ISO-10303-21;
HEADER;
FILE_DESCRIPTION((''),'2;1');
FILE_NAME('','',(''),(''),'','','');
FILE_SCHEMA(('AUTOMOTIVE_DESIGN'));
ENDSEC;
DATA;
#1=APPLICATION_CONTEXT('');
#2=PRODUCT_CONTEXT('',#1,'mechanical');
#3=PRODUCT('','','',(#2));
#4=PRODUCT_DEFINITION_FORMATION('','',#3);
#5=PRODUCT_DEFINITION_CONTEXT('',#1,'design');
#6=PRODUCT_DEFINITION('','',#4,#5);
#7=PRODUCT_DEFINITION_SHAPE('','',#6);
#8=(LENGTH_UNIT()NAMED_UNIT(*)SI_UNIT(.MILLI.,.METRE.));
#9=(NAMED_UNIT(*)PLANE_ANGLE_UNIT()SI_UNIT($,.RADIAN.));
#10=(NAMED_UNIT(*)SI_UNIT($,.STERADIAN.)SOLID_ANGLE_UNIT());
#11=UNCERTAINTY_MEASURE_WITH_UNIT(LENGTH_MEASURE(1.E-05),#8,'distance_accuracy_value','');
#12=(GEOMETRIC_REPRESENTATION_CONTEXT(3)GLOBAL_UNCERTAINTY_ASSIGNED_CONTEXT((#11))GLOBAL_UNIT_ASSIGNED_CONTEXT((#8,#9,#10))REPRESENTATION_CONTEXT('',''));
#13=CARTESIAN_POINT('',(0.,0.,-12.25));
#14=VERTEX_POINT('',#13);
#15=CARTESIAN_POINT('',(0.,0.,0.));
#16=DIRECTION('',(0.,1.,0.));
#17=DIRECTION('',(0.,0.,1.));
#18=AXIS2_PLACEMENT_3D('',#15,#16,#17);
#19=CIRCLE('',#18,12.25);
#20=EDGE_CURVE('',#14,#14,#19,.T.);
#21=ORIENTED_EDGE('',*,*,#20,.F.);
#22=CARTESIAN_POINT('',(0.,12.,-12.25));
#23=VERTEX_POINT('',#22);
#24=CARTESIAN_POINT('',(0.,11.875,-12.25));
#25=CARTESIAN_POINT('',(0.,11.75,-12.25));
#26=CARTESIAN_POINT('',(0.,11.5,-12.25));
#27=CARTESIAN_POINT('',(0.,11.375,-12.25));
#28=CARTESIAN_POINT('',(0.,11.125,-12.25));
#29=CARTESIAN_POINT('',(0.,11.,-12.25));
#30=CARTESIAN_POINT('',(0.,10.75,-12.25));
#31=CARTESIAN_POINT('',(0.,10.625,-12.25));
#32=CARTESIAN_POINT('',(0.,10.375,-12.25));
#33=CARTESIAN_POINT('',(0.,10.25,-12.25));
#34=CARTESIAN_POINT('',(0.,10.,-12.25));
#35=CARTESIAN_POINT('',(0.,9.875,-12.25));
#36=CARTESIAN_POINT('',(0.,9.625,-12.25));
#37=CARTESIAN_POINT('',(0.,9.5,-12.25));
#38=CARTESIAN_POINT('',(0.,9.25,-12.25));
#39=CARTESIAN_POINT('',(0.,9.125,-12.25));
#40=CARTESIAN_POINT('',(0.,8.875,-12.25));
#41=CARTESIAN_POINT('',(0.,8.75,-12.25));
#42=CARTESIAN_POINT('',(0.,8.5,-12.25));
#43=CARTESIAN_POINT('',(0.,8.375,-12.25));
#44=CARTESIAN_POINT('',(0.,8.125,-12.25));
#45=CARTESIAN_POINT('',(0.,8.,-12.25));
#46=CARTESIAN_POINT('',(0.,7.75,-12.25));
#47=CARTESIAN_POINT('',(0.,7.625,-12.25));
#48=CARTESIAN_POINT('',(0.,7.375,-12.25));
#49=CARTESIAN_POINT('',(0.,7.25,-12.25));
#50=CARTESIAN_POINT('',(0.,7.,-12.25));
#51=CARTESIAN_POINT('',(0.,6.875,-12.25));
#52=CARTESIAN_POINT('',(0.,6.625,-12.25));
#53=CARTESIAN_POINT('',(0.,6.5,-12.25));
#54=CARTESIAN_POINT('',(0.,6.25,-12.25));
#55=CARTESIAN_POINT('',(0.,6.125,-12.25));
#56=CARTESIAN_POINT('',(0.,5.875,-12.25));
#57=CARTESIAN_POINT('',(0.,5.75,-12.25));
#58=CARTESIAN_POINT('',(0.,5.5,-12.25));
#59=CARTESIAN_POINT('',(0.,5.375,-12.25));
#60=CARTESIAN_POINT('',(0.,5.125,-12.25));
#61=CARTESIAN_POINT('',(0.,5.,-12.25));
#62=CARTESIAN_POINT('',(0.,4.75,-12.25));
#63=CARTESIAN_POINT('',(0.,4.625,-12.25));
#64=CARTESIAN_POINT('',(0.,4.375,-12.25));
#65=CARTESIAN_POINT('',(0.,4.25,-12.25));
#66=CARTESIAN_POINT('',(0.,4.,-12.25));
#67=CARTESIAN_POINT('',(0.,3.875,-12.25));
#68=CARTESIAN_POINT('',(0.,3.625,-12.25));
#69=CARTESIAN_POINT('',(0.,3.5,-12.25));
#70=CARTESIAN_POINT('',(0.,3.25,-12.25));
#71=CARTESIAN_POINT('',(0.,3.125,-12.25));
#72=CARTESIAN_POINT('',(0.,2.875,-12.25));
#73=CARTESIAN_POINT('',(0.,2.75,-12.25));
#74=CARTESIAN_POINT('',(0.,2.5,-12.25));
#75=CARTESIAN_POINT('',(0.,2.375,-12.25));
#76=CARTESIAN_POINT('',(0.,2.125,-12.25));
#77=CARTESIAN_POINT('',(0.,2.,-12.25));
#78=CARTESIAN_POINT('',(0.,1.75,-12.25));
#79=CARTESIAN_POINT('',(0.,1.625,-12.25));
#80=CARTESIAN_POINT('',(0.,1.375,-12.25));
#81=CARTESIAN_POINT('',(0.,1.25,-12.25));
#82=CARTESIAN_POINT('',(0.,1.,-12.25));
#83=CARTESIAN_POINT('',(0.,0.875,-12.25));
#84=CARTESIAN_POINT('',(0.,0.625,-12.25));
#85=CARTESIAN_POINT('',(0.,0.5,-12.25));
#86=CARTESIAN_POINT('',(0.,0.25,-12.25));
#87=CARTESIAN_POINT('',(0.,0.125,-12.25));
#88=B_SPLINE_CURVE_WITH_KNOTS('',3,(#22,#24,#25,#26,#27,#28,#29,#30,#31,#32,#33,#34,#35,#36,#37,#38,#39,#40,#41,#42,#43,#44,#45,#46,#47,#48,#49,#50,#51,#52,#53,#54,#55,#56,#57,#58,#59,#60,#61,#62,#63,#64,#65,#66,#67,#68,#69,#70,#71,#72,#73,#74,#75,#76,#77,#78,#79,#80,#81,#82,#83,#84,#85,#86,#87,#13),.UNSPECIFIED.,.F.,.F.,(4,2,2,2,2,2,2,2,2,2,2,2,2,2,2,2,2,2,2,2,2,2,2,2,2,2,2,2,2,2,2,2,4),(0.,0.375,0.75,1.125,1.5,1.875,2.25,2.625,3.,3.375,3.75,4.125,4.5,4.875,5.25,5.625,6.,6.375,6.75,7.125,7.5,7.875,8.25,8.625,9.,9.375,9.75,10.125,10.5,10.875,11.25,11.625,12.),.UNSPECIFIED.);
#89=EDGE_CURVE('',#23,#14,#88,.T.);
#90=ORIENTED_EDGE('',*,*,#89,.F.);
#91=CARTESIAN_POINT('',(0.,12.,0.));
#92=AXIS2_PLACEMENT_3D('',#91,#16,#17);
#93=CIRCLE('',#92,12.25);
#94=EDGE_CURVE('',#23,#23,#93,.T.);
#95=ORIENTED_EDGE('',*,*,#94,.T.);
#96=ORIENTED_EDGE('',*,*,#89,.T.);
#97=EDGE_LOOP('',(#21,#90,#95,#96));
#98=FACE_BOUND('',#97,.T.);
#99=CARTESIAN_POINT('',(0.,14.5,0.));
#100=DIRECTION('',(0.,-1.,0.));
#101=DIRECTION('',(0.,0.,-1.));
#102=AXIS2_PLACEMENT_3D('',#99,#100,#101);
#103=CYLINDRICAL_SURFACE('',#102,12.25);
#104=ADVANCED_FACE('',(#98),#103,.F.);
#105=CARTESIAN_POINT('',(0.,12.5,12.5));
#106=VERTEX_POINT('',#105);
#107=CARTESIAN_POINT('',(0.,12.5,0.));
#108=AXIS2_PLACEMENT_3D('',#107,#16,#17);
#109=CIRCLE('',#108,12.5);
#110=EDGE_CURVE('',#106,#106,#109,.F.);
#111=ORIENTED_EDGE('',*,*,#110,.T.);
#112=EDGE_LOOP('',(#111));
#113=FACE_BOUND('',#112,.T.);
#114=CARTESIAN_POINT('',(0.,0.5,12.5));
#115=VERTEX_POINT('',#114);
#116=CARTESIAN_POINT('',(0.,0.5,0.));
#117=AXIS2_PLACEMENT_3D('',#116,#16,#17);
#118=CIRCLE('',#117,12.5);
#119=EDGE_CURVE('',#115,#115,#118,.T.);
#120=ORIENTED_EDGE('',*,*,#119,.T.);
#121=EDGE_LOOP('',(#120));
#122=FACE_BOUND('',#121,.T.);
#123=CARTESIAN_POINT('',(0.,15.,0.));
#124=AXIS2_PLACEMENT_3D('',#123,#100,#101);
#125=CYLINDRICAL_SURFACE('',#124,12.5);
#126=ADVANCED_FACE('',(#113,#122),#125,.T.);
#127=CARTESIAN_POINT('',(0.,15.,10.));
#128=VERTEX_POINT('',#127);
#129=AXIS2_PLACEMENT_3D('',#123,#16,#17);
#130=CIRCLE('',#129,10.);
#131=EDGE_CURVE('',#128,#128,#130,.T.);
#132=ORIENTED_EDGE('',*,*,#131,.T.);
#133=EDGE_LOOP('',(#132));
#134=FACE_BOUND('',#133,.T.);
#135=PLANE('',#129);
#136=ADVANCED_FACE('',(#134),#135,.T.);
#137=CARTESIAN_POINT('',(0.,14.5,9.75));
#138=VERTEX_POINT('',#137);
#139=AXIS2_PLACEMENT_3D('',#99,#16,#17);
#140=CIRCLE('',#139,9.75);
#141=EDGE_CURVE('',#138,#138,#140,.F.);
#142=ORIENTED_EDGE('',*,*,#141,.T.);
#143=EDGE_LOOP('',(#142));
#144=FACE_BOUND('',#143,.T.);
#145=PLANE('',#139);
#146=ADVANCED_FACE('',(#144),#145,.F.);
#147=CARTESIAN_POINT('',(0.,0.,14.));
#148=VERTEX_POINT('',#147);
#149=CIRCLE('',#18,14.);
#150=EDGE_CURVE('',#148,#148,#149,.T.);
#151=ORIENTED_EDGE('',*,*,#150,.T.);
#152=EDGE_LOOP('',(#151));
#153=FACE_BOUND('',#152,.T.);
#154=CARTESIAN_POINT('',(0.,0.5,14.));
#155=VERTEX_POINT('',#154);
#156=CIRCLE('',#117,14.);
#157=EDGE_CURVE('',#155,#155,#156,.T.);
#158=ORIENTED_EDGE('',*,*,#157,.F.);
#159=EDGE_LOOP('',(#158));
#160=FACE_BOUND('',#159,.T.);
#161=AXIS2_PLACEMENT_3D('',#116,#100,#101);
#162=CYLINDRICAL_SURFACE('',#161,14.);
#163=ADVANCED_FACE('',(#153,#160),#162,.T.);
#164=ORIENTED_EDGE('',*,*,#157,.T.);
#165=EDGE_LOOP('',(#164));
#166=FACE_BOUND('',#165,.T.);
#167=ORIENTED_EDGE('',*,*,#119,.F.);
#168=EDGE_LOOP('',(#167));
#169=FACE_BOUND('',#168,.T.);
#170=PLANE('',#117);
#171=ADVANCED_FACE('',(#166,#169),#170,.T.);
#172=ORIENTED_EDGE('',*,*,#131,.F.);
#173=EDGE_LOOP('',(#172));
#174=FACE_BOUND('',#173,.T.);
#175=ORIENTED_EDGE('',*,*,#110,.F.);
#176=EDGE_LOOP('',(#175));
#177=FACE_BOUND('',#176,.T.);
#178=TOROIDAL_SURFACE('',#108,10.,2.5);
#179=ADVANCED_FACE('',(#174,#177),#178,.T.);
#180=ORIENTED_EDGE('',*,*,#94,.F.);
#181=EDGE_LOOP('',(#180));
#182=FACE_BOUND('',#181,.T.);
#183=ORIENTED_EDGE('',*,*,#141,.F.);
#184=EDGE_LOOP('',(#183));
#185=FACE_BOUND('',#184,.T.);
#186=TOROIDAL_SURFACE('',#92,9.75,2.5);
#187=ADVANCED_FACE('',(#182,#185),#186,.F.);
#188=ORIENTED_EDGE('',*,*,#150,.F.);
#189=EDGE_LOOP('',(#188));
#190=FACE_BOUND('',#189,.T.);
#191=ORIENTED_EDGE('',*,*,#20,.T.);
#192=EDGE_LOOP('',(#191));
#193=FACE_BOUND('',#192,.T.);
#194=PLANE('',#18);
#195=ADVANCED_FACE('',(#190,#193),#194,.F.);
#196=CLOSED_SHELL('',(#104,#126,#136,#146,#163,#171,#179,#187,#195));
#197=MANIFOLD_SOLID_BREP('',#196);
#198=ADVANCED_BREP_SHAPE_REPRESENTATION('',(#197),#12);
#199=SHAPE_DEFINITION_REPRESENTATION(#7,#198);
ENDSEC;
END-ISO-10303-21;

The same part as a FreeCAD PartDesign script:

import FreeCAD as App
import Part
import Sketcher
from FreeCAD import Vector
Q = App.Units.Quantity


def edges_at(feature, points):
    """Names of the edges that pass closest to the given points."""
    edges = feature.Shape.Edges
    near = lambda p: min(range(len(edges)), key=lambda i: edges[i].distToShape(Part.Vertex(*p))[0])
    return sorted({f"Edge{near(p) + 1}" for p in points})

doc = App.newDocument("Part")
body = doc.addObject("PartDesign::Body", "Body")

# Sketch on XZ plane
sketch1 = body.newObject("Sketcher::SketchObject", "Sketch")
sketch1.AttachmentSupport = (doc.getObject("XZ_Plane"), [""])
sketch1.MapMode = "FlatFace"
sketch1.addGeometry(Part.Circle(Vector(0, 0, 0), Vector(0, 0, 1), 12), False)
sketch1.addConstraint(Sketcher.Constraint("Coincident", 0, 3, -1, 1))
sketch1.addConstraint(Sketcher.Constraint("Diameter", 0, Q("25 mm")))
pad1 = body.newObject("PartDesign::Pad", "Pad")
pad1.Profile = sketch1
pad1.Length = 15
pad1.Reversed = True

# Sketch on XZ plane
sketch2 = body.newObject("Sketcher::SketchObject", "Sketch001")
sketch2.AttachmentSupport = (doc.getObject("XZ_Plane"), [""])
sketch2.MapMode = "FlatFace"
sketch2.addGeometry(Part.Circle(Vector(0, 0, 0), Vector(0, 0, 1), 14), False)
sketch2.addConstraint(Sketcher.Constraint("Coincident", 0, 3, -1, 1))
sketch2.addConstraint(Sketcher.Constraint("Diameter", 0, Q("28 mm")))
pad2 = body.newObject("PartDesign::Pad", "Pad001")
pad2.Profile = sketch2
pad2.Length = 0.5
pad2.Reversed = True

# Sketch on XZ plane
sketch3 = body.newObject("Sketcher::SketchObject", "Sketch002")
sketch3.AttachmentSupport = (doc.getObject("XZ_Plane"), [""])
sketch3.MapMode = "FlatFace"
sketch3.addGeometry(Part.Circle(Vector(0, 0, 0), Vector(0, 0, 1), 12), False)
sketch3.addConstraint(Sketcher.Constraint("Coincident", 0, 3, -1, 1))
sketch3.addConstraint(Sketcher.Constraint("Diameter", 0, Q("24.5 mm")))
pocket1 = body.newObject("PartDesign::Pocket", "Pocket")
pocket1.Profile = sketch3
pocket1.Length = 14.5
doc.recompute()

fillet = body.newObject("PartDesign::Fillet", "Fillet")
fillet.Base = (pocket1, edges_at(pocket1, [(0, 15, -12.5)]))
fillet.Radius = 2.5
doc.recompute()

fillet2 = body.newObject("PartDesign::Fillet", "Fillet001")
fillet2.Base = (fillet, edges_at(fillet, [(0, 14.5, 12.25)]))
fillet2.Radius = 2.5

doc.recompute()
